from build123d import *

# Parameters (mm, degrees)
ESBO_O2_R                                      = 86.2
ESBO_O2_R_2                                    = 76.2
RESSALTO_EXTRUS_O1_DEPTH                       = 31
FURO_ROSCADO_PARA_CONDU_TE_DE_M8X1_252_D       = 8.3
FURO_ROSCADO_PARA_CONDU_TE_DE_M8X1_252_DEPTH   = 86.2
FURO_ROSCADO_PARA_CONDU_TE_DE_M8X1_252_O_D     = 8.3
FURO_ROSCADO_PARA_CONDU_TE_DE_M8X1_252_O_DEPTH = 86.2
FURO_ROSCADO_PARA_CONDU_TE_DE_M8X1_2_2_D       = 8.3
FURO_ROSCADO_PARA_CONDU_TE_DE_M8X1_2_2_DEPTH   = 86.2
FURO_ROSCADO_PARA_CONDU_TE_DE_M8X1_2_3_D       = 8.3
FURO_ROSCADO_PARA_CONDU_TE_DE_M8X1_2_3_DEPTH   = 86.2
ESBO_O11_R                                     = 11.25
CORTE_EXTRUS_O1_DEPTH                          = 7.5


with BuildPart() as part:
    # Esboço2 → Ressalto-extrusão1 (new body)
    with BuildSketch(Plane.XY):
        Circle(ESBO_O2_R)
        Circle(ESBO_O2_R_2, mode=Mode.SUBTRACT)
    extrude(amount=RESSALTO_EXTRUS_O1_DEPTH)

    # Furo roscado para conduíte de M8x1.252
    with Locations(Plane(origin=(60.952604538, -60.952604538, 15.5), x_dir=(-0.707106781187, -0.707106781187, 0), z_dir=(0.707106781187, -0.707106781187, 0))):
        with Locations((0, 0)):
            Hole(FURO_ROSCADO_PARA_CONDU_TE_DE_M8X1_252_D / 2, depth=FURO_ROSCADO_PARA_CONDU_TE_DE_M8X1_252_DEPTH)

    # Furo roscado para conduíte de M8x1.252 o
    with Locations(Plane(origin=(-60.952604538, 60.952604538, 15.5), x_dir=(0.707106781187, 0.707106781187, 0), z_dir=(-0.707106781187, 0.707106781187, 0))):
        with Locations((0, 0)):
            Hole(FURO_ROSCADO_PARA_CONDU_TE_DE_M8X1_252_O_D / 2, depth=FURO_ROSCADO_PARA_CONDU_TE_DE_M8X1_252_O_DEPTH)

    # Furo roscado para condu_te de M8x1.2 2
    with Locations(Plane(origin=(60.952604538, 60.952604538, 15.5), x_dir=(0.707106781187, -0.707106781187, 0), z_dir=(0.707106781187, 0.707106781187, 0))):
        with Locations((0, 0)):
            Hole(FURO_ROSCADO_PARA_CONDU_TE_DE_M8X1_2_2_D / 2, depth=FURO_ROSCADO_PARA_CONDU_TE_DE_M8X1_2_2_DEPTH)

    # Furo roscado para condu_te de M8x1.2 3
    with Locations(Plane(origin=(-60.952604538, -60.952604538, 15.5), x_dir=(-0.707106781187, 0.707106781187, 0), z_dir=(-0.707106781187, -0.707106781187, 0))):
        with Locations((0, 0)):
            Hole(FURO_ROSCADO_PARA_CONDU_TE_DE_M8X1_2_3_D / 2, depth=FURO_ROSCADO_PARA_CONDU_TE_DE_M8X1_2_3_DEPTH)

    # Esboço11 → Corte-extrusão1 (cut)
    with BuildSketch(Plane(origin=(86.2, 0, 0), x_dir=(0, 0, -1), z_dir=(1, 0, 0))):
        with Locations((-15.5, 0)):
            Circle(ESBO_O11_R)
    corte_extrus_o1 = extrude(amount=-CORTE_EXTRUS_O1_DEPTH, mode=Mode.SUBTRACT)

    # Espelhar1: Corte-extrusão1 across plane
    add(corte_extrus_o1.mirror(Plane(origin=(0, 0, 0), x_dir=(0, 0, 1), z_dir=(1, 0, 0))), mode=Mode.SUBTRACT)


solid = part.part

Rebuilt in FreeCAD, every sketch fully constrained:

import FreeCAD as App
import Part
import Sketcher

V = App.Vector

doc = App.newDocument("Part")
body = doc.addObject("PartDesign::Body", "Body")

# Sketch on XY plane
sketch1 = body.newObject("Sketcher::SketchObject", "Sketch")
sketch1.AttachmentSupport = (doc.getObject("XY_Plane"), [""])
sketch1.MapMode = "FlatFace"
sketch1.addGeometry(Part.Circle(V(0, 0, 0), V(0, 0, 1), 86), False)
sketch1.addGeometry(Part.Circle(V(0, 0, 0), V(0, 0, 1), 76), False)
sketch1.addConstraint(Sketcher.Constraint("Coincident", 0, 3, -1, 1))
sketch1.addConstraint(Sketcher.Constraint("Coincident", 1, 3, -1, 1))
sketch1.addConstraint(Sketcher.Constraint("Diameter", 0, 172.4))
sketch1.addConstraint(Sketcher.Constraint("Diameter", 1, 152.4))
pad1 = body.newObject("PartDesign::Pad", "Pad")
pad1.Profile = sketch1
pad1.Length = 31

# Sketch on an angled plane
sketch2 = body.newObject("Sketcher::SketchObject", "Sketch001")
sketch2.Placement = App.Placement(V(60.952605, -60.952605, 0), App.Rotation(V(-0.707106781, -0.707106781, 0), V(0, 0, -0.999999999), V(0.707106781, -0.707106781, 0), "ZXY"))
sketch2.addGeometry(Part.Circle(V(0, -15.5, 0), V(0, 0, 1), 4.2), False)
sketch2.addConstraint(Sketcher.Constraint("PointOnObject", 0, 3, -2))
sketch2.addConstraint(Sketcher.Constraint("Diameter", 0, 8.3))
sketch2.addConstraint(Sketcher.Constraint("DistanceY", 0, 3, -1, 1, 15.5))
doc.recompute()
hole = body.newObject("PartDesign::Hole", "Hole")
hole.Profile = sketch2
hole.ThreadType = "None"
hole.Diameter = 8.3
hole.DepthType = "Dimension"
hole.Depth = 86.2
hole.DrillPoint = "Flat"

# Sketch on an angled plane
sketch3 = body.newObject("Sketcher::SketchObject", "Sketch002")
sketch3.Placement = App.Placement(V(-60.952605, 60.952605, 0), App.Rotation(V(0.707106781, 0.707106781, 0), V(0, 0, -0.999999999), V(-0.707106781, 0.707106781, 0), "ZXY"))
sketch3.addGeometry(Part.Circle(V(0, -15.5, 0), V(0, 0, 1), 4.2), False)
sketch3.addConstraint(Sketcher.Constraint("PointOnObject", 0, 3, -2))
sketch3.addConstraint(Sketcher.Constraint("Diameter", 0, 8.3))
sketch3.addConstraint(Sketcher.Constraint("DistanceY", 0, 3, -1, 1, 15.5))
doc.recompute()
hole2 = body.newObject("PartDesign::Hole", "Hole001")
hole2.Profile = sketch3
hole2.ThreadType = "None"
hole2.Diameter = 8.3
hole2.DepthType = "Dimension"
hole2.Depth = 86.2
hole2.DrillPoint = "Flat"

# Sketch on an angled plane
sketch4 = body.newObject("Sketcher::SketchObject", "Sketch003")
sketch4.Placement = App.Placement(V(60.952605, 60.952605, 0), App.Rotation(V(0.707106781, -0.707106781, 0), V(0, 0, -0.999999999), V(0.707106781, 0.707106781, 0), "ZXY"))
sketch4.addGeometry(Part.Circle(V(0, -15.5, 0), V(0, 0, 1), 4.2), False)
sketch4.addConstraint(Sketcher.Constraint("PointOnObject", 0, 3, -2))
sketch4.addConstraint(Sketcher.Constraint("Diameter", 0, 8.3))
sketch4.addConstraint(Sketcher.Constraint("DistanceY", 0, 3, -1, 1, 15.5))
doc.recompute()
hole3 = body.newObject("PartDesign::Hole", "Hole002")
hole3.Profile = sketch4
hole3.ThreadType = "None"
hole3.Diameter = 8.3
hole3.DepthType = "Dimension"
hole3.Depth = 86.2
hole3.DrillPoint = "Flat"

# Sketch on an angled plane
sketch5 = body.newObject("Sketcher::SketchObject", "Sketch004")
sketch5.Placement = App.Placement(V(-60.952605, -60.952605, 0), App.Rotation(V(-0.707106781, 0.707106781, 0), V(0, 0, -0.999999999), V(-0.707106781, -0.707106781, 0), "ZXY"))
sketch5.addGeometry(Part.Circle(V(0, -15.5, 0), V(0, 0, 1), 4.2), False)
sketch5.addConstraint(Sketcher.Constraint("PointOnObject", 0, 3, -2))
sketch5.addConstraint(Sketcher.Constraint("Diameter", 0, 8.3))
sketch5.addConstraint(Sketcher.Constraint("DistanceY", 0, 3, -1, 1, 15.5))
doc.recompute()
hole4 = body.newObject("PartDesign::Hole", "Hole003")
hole4.Profile = sketch5
hole4.ThreadType = "None"
hole4.Diameter = 8.3
hole4.DepthType = "Dimension"
hole4.Depth = 86.2
hole4.DrillPoint = "Flat"

# Sketch on YZ plane
sketch6 = body.newObject("Sketcher::SketchObject", "Sketch005")
sketch6.AttachmentSupport = (doc.getObject("YZ_Plane"), [""])
sketch6.MapMode = "FlatFace"
sketch6.AttachmentOffset = App.Placement(V(0, 0, 86.2), App.Rotation())
sketch6.addGeometry(Part.Circle(V(0, 16, 0), V(0, 0, 1), 11), False)
sketch6.addConstraint(Sketcher.Constraint("PointOnObject", 0, 3, -2))
sketch6.addConstraint(Sketcher.Constraint("Diameter", 0, 22.5))
sketch6.addConstraint(Sketcher.Constraint("DistanceY", -1, 1, 0, 3, 15.5))
pocket1 = body.newObject("PartDesign::Pocket", "Pocket")
pocket1.Profile = sketch6
pocket1.Length = 7.5
doc.recompute()

mirrored = body.newObject("PartDesign::Mirrored", "Mirrored")
mirrored.Originals = [pocket1]
mirrored.MirrorPlane = (doc.getObject("YZ_Plane"), [""])
body.Tip = mirrored

doc.recompute()
